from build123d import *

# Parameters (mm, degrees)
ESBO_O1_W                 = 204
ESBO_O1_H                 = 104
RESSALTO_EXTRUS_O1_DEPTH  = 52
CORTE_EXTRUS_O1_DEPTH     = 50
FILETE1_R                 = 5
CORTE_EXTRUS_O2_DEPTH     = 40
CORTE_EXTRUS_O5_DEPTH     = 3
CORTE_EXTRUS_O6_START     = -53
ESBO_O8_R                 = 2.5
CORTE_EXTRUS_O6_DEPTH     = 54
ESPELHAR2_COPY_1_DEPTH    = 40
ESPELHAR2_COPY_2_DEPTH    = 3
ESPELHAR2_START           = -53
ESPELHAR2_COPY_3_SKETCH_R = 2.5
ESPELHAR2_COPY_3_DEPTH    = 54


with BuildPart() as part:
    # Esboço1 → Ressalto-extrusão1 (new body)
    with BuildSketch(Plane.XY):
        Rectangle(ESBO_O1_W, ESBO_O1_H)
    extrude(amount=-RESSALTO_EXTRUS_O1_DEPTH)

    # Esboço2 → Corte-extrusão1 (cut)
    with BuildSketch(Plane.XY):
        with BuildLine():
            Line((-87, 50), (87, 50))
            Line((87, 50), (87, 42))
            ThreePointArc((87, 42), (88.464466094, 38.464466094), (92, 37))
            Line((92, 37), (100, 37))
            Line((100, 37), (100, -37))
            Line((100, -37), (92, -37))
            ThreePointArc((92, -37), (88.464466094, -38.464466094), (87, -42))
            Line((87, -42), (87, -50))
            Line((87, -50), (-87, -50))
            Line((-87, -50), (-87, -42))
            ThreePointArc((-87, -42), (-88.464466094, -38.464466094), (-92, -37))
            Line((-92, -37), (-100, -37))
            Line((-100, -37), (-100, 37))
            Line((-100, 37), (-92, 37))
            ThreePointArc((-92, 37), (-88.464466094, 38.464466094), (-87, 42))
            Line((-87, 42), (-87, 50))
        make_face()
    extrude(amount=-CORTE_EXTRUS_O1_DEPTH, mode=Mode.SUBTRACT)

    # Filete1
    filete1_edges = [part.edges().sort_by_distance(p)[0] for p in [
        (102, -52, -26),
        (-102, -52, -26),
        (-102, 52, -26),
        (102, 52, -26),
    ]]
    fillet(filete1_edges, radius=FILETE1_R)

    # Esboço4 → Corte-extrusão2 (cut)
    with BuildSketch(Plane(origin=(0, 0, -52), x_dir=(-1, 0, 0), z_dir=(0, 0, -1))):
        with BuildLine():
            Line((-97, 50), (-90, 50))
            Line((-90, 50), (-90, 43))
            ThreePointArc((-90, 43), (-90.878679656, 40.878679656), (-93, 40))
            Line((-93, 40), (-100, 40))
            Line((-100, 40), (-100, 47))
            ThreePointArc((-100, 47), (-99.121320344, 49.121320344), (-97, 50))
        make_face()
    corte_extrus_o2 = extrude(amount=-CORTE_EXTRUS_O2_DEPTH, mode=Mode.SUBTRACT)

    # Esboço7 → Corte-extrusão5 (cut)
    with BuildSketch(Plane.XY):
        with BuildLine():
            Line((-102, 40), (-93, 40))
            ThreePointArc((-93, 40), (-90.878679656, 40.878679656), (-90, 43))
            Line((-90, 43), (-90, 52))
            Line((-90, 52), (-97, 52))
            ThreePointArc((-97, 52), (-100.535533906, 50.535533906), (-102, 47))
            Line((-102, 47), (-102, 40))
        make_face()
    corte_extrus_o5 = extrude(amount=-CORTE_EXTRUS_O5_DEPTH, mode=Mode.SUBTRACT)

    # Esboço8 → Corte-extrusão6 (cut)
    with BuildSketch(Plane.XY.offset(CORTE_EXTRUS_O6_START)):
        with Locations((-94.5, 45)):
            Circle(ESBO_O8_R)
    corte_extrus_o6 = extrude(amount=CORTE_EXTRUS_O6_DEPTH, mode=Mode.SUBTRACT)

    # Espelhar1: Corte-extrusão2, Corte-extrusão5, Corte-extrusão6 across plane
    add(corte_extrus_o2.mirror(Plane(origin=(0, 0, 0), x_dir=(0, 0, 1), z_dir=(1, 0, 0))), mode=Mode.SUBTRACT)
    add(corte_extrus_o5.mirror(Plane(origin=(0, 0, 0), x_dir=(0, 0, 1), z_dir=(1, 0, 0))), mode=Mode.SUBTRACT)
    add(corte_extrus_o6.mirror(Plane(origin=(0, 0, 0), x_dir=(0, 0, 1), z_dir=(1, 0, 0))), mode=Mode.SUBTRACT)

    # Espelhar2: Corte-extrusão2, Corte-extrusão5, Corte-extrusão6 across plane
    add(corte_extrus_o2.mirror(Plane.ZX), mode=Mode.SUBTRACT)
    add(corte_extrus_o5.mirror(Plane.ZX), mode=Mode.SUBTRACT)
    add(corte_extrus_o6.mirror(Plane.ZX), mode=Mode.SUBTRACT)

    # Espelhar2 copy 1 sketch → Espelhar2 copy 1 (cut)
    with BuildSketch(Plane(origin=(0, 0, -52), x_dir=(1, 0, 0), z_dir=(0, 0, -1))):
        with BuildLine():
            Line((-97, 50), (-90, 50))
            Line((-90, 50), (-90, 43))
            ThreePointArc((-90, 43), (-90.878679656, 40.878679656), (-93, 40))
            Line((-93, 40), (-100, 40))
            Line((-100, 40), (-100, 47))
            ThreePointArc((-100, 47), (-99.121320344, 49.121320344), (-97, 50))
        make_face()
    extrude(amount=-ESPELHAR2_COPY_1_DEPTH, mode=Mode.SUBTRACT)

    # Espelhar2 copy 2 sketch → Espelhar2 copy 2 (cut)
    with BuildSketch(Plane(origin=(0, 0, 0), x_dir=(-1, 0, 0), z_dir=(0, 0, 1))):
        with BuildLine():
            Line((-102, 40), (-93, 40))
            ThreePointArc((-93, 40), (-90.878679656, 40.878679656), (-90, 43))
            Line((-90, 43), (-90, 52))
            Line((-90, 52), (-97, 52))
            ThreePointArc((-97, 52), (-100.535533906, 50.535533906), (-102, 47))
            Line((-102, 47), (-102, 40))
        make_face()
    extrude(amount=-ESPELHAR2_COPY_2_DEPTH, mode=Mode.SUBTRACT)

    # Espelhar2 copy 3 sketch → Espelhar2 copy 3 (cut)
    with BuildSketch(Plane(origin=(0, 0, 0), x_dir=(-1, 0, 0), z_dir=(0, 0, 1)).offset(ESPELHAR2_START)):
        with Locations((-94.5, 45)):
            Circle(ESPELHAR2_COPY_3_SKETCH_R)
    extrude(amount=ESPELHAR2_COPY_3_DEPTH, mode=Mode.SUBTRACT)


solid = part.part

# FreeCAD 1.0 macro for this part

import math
import FreeCAD as App
import Part
import Sketcher

V = App.Vector
Q = App.Units.Quantity


def edges_at(feature, points):
    """Names of the edges that pass closest to the given points."""
    edges = feature.Shape.Edges
    near = lambda p: min(range(len(edges)), key=lambda i: edges[i].distToShape(Part.Vertex(*p))[0])
    return sorted({f"Edge{near(p) + 1}" for p in points})

doc = App.newDocument("Part")
body = doc.addObject("PartDesign::Body", "Body")

sketch1 = doc.addObject("Sketcher::SketchObject", "Sketch")
body.addObject(sketch1)
sketch1.AttachmentSupport = (doc.XY_Plane, [""])
sketch1.MapMode = "FlatFace"
sketch1.addGeometry([
    Part.LineSegment(V(-102, 52, 0), V(-102, -52, 0)),
    Part.LineSegment(V(-102, -52, 0), V(102, -52, 0)),
    Part.LineSegment(V(102, -52, 0), V(102, 52, 0)),
    Part.LineSegment(V(102, 52, 0), V(-102, 52, 0)),
], False)
sketch1.addConstraint([
    Sketcher.Constraint("Coincident", 0, 2, 1, 1),
    Sketcher.Constraint("Coincident", 1, 2, 2, 1),
    Sketcher.Constraint("Coincident", 2, 2, 3, 1),
    Sketcher.Constraint("Coincident", 3, 2, 0, 1),
    Sketcher.Constraint("Vertical", 0),
    Sketcher.Constraint("Horizontal", 1),
    Sketcher.Constraint("Vertical", 2),
    Sketcher.Constraint("Horizontal", 3),
    Sketcher.Constraint("Symmetric", 0, 2, 2, 2, -1, 1),
    Sketcher.Constraint("DistanceX", 1, 1, 1, 2, Q("204 mm")),
    Sketcher.Constraint("DistanceY", 0, 2, 0, 1, Q("104 mm")),
])
pad1 = doc.addObject("PartDesign::Pad", "Pad")
body.addObject(pad1)
pad1.Profile = sketch1
pad1.Length = 52
pad1.Reversed = True

sketch2 = doc.addObject("Sketcher::SketchObject", "Sketch001")
body.addObject(sketch2)
sketch2.AttachmentSupport = (doc.XY_Plane, [""])
sketch2.MapMode = "FlatFace"
sketch2.addGeometry([
    Part.LineSegment(V(87, 50, 0), V(-87, 50, 0)),
    Part.LineSegment(V(-87, 50, 0), V(-87, 42, 0)),
    Part.ArcOfCircle(Part.Circle(V(-92, 42, 0), V(0, 0, 1), 5), math.radians(-90), math.radians(0)),
    Part.LineSegment(V(-92, 37, 0), V(-100, 37, 0)),
    Part.LineSegment(V(-100, 37, 0), V(-100, -37, 0)),
    Part.LineSegment(V(-100, -37, 0), V(-92, -37, 0)),
    Part.ArcOfCircle(Part.Circle(V(-92, -42, 0), V(0, 0, 1), 5), math.radians(0), math.radians(90)),
    Part.LineSegment(V(-87, -42, 0), V(-87, -50, 0)),
    Part.LineSegment(V(-87, -50, 0), V(87, -50, 0)),
    Part.LineSegment(V(87, -50, 0), V(87, -42, 0)),
    Part.ArcOfCircle(Part.Circle(V(92, -42, 0), V(0, 0, 1), 5), math.radians(90), math.radians(180)),
    Part.LineSegment(V(92, -37, 0), V(100, -37, 0)),
    Part.LineSegment(V(100, -37, 0), V(100, 37, 0)),
    Part.LineSegment(V(100, 37, 0), V(92, 37, 0)),
    Part.ArcOfCircle(Part.Circle(V(92, 42, 0), V(0, 0, 1), 5), math.radians(180), math.radians(270)),
    Part.LineSegment(V(87, 42, 0), V(87, 50, 0)),
], False)
sketch2.addConstraint([
    Sketcher.Constraint("Coincident", 0, 2, 1, 1),
    Sketcher.Constraint("Tangent", 1, 2, 2, 2),
    Sketcher.Constraint("Tangent", 2, 1, 3, 1),
    Sketcher.Constraint("Coincident", 3, 2, 4, 1),
    Sketcher.Constraint("Coincident", 4, 2, 5, 1),
    Sketcher.Constraint("Tangent", 5, 2, 6, 2),
    Sketcher.Constraint("Tangent", 6, 1, 7, 1),
    Sketcher.Constraint("Coincident", 7, 2, 8, 1),
    Sketcher.Constraint("Coincident", 8, 2, 9, 1),
    Sketcher.Constraint("Tangent", 9, 2, 10, 2),
    Sketcher.Constraint("Tangent", 10, 1, 11, 1),
    Sketcher.Constraint("Coincident", 11, 2, 12, 1),
    Sketcher.Constraint("Coincident", 12, 2, 13, 1),
    Sketcher.Constraint("Tangent", 13, 2, 14, 2),
    Sketcher.Constraint("Tangent", 14, 1, 15, 1),
    Sketcher.Constraint("Coincident", 15, 2, 0, 1),
    Sketcher.Constraint("Horizontal", 0),
    Sketcher.Constraint("Vertical", 1),
    Sketcher.Constraint("Horizontal", 3),
    Sketcher.Constraint("Vertical", 4),
    Sketcher.Constraint("Horizontal", 5),
    Sketcher.Constraint("Vertical", 7),
    Sketcher.Constraint("Horizontal", 8),
    Sketcher.Constraint("Vertical", 9),
    Sketcher.Constraint("Horizontal", 11),
    Sketcher.Constraint("Vertical", 12),
    Sketcher.Constraint("Horizontal", 13),
    Sketcher.Constraint("Vertical", 15),
    Sketcher.Constraint("Equal", 2, 6),
    Sketcher.Constraint("Equal", 6, 10),
    Sketcher.Constraint("Equal", 10, 14),
    Sketcher.Constraint("Symmetric", 2, 3, 10, 3, -1, 1),
    Sketcher.Constraint("Symmetric", 6, 3, 14, 3, -1, 1),
    Sketcher.Constraint("Symmetric", 6, 3, 10, 3, -2),
    Sketcher.Constraint("Equal", 5, 11),
    Sketcher.Constraint("Equal", 13, 1),
    Sketcher.Constraint("Equal", 1, 7),
    Sketcher.Constraint("Radius", 2, Q("5 mm")),
    Sketcher.Constraint("DistanceX", 0, 2, 0, 1, Q("174 mm")),
    Sketcher.Constraint("DistanceX", 3, 2, 3, 1, Q("8 mm")),
    Sketcher.Constraint("DistanceY", 4, 2, 4, 1, Q("74 mm")),
])
pocket1 = doc.addObject("PartDesign::Pocket", "Pocket")
body.addObject(pocket1)
pocket1.Profile = sketch2
pocket1.Length = 50
doc.recompute()

fillet = doc.addObject("PartDesign::Fillet", "Fillet")
body.addObject(fillet)
fillet.Base = (pocket1, edges_at(pocket1, [
    (102, -52, -26),
    (-102, -52, -26),
    (-102, 52, -26),
    (102, 52, -26),
]))
fillet.Radius = 5

sketch3 = doc.addObject("Sketcher::SketchObject", "Sketch002")
body.addObject(sketch3)
sketch3.AttachmentSupport = (doc.XY_Plane, [""])
sketch3.MapMode = "FlatFace"
sketch3.AttachmentOffset = App.Placement(V(0, 0, -52), App.Rotation())
sketch3.addGeometry([
    Part.LineSegment(V(90, 50, 0), V(97, 50, 0)),
    Part.ArcOfCircle(Part.Circle(V(97, 47, 0), V(0, 0, 1), 3), math.radians(0), math.radians(90)),
    Part.LineSegment(V(100, 47, 0), V(100, 40, 0)),
    Part.LineSegment(V(100, 40, 0), V(93, 40, 0)),
    Part.ArcOfCircle(Part.Circle(V(93, 43, 0), V(0, 0, 1), 3), math.radians(180), math.radians(270)),
    Part.LineSegment(V(90, 43, 0), V(90, 50, 0)),
], False)
sketch3.addConstraint([
    Sketcher.Constraint("Tangent", 0, 2, 1, 2),
    Sketcher.Constraint("Tangent", 1, 1, 2, 1),
    Sketcher.Constraint("Coincident", 2, 2, 3, 1),
    Sketcher.Constraint("Tangent", 3, 2, 4, 2),
    Sketcher.Constraint("Tangent", 4, 1, 5, 1),
    Sketcher.Constraint("Coincident", 5, 2, 0, 1),
    Sketcher.Constraint("Horizontal", 0),
    Sketcher.Constraint("Vertical", 2),
    Sketcher.Constraint("Horizontal", 3),
    Sketcher.Constraint("Vertical", 5),
    Sketcher.Constraint("Equal", 1, 4),
    Sketcher.Constraint("Equal", 3, 2),
    Sketcher.Constraint("Radius", 1, Q("3 mm")),
    Sketcher.Constraint("DistanceX", 0, 1, 0, 2, Q("7 mm")),
    Sketcher.Constraint("DistanceX", -1, 1, 1, 3, Q("97 mm")),
    Sketcher.Constraint("DistanceY", -1, 1, 1, 3, Q("47 mm")),
])
pocket2 = doc.addObject("PartDesign::Pocket", "Pocket001")
body.addObject(pocket2)
pocket2.Profile = sketch3
pocket2.Length = 40
pocket2.Reversed = True

sketch4 = doc.addObject("Sketcher::SketchObject", "Sketch003")
body.addObject(sketch4)
sketch4.AttachmentSupport = (doc.XY_Plane, [""])
sketch4.MapMode = "FlatFace"
sketch4.addGeometry([
    Part.LineSegment(V(-102, 40, 0), V(-93, 40, 0)),
    Part.ArcOfCircle(Part.Circle(V(-93, 43, 0), V(0, 0, 1), 3), math.radians(-90), math.radians(0)),
    Part.LineSegment(V(-90, 43, 0), V(-90, 52, 0)),
    Part.LineSegment(V(-90, 52, 0), V(-97, 52, 0)),
    Part.ArcOfCircle(Part.Circle(V(-97, 47, 0), V(0, 0, 1), 5), math.radians(90), math.radians(180)),
    Part.LineSegment(V(-102, 47, 0), V(-102, 40, 0)),
], False)
sketch4.addConstraint([
    Sketcher.Constraint("Tangent", 0, 2, 1, 1),
    Sketcher.Constraint("Tangent", 1, 2, 2, 1),
    Sketcher.Constraint("Coincident", 2, 2, 3, 1),
    Sketcher.Constraint("Tangent", 3, 2, 4, 1),
    Sketcher.Constraint("Tangent", 4, 2, 5, 1),
    Sketcher.Constraint("Coincident", 5, 2, 0, 1),
    Sketcher.Constraint("Horizontal", 0),
    Sketcher.Constraint("Vertical", 2),
    Sketcher.Constraint("Horizontal", 3),
    Sketcher.Constraint("Vertical", 5),
    Sketcher.Constraint("Equal", 0, 2),
    Sketcher.Constraint("Radius", 1, Q("3 mm")),
    Sketcher.Constraint("Radius", 4, Q("5 mm")),
    Sketcher.Constraint("DistanceX", 0, 1, 0, 2, Q("9 mm")),
    Sketcher.Constraint("DistanceX", 1, 3, -1, 1, Q("93 mm")),
    Sketcher.Constraint("DistanceY", -1, 1, 1, 3, Q("43 mm")),
])
pocket3 = doc.addObject("PartDesign::Pocket", "Pocket002")
body.addObject(pocket3)
pocket3.Profile = sketch4
pocket3.Length = 3

sketch5 = doc.addObject("Sketcher::SketchObject", "Sketch004")
body.addObject(sketch5)
sketch5.AttachmentSupport = (doc.XY_Plane, [""])
sketch5.MapMode = "FlatFace"
sketch5.AttachmentOffset = App.Placement(V(0, 0, -53), App.Rotation())
sketch5.addGeometry(Part.Circle(V(-94.5, 45, 0), V(0, 0, 1), 2.5), False)
sketch5.addConstraint([
    Sketcher.Constraint("Diameter", 0, Q("5 mm")),
    Sketcher.Constraint("DistanceY", -1, 1, 0, 3, Q("45 mm")),
    Sketcher.Constraint("DistanceX", 0, 3, -1, 1, Q("94.5 mm")),
])
pocket4 = doc.addObject("PartDesign::Pocket", "Pocket003")
body.addObject(pocket4)
pocket4.Profile = sketch5
pocket4.Length = 54
pocket4.Reversed = True
doc.recompute()

mirrored = doc.addObject("PartDesign::Mirrored", "Mirrored")
body.addObject(mirrored)
mirrored.Originals = [pocket2, pocket3, pocket4]
mirrored.MirrorPlane = (doc.YZ_Plane, [""])
body.Tip = mirrored
doc.recompute()

mirrored2 = doc.addObject("PartDesign::Mirrored", "Mirrored001")
body.addObject(mirrored2)
mirrored2.Originals = [pocket2, pocket3, pocket4]
mirrored2.MirrorPlane = (doc.XZ_Plane, [""])
body.Tip = mirrored2

sketch6 = doc.addObject("Sketcher::SketchObject", "Sketch005")
body.addObject(sketch6)
sketch6.AttachmentSupport = (doc.XY_Plane, [""])
sketch6.MapMode = "FlatFace"
sketch6.AttachmentOffset = App.Placement(V(0, 0, -52), App.Rotation())
sketch6.addGeometry([
    Part.LineSegment(V(-90, -50, 0), V(-97, -50, 0)),
    Part.ArcOfCircle(Part.Circle(V(-97, -47, 0), V(0, 0, 1), 3), math.radians(180), math.radians(270)),
    Part.LineSegment(V(-100, -47, 0), V(-100, -40, 0)),
    Part.LineSegment(V(-100, -40, 0), V(-93, -40, 0)),
    Part.ArcOfCircle(Part.Circle(V(-93, -43, 0), V(0, 0, 1), 3), math.radians(0), math.radians(90)),
    Part.LineSegment(V(-90, -43, 0), V(-90, -50, 0)),
], False)
sketch6.addConstraint([
    Sketcher.Constraint("Tangent", 0, 2, 1, 2),
    Sketcher.Constraint("Tangent", 1, 1, 2, 1),
    Sketcher.Constraint("Coincident", 2, 2, 3, 1),
    Sketcher.Constraint("Tangent", 3, 2, 4, 2),
    Sketcher.Constraint("Tangent", 4, 1, 5, 1),
    Sketcher.Constraint("Coincident", 5, 2, 0, 1),
    Sketcher.Constraint("Horizontal", 0),
    Sketcher.Constraint("Vertical", 2),
    Sketcher.Constraint("Horizontal", 3),
    Sketcher.Constraint("Vertical", 5),
    Sketcher.Constraint("Equal", 1, 4),
    Sketcher.Constraint("Equal", 3, 2),
    Sketcher.Constraint("Radius", 1, Q("3 mm")),
    Sketcher.Constraint("DistanceX", 0, 2, 0, 1, Q("7 mm")),
    Sketcher.Constraint("DistanceX", 1, 3, -1, 1, Q("97 mm")),
    Sketcher.Constraint("DistanceY", 1, 3, -1, 1, Q("47 mm")),
])
pocket5 = doc.addObject("PartDesign::Pocket", "Pocket004")
body.addObject(pocket5)
pocket5.Profile = sketch6
pocket5.Length = 40
pocket5.Reversed = True

sketch7 = doc.addObject("Sketcher::SketchObject", "Sketch006")
body.addObject(sketch7)
sketch7.AttachmentSupport = (doc.XY_Plane, [""])
sketch7.MapMode = "FlatFace"
sketch7.addGeometry([
    Part.LineSegment(V(102, -40, 0), V(93, -40, 0)),
    Part.ArcOfCircle(Part.Circle(V(93, -43, 0), V(0, 0, 1), 3), math.radians(90), math.radians(180)),
    Part.LineSegment(V(90, -43, 0), V(90, -52, 0)),
    Part.LineSegment(V(90, -52, 0), V(97, -52, 0)),
    Part.ArcOfCircle(Part.Circle(V(97, -47, 0), V(0, 0, 1), 5), math.radians(-90), math.radians(0)),
    Part.LineSegment(V(102, -47, 0), V(102, -40, 0)),
], False)
sketch7.addConstraint([
    Sketcher.Constraint("Tangent", 0, 2, 1, 1),
    Sketcher.Constraint("Tangent", 1, 2, 2, 1),
    Sketcher.Constraint("Coincident", 2, 2, 3, 1),
    Sketcher.Constraint("Tangent", 3, 2, 4, 1),
    Sketcher.Constraint("Tangent", 4, 2, 5, 1),
    Sketcher.Constraint("Coincident", 5, 2, 0, 1),
    Sketcher.Constraint("Horizontal", 0),
    Sketcher.Constraint("Vertical", 2),
    Sketcher.Constraint("Horizontal", 3),
    Sketcher.Constraint("Vertical", 5),
    Sketcher.Constraint("Equal", 0, 2),
    Sketcher.Constraint("Radius", 1, Q("3 mm")),
    Sketcher.Constraint("Radius", 4, Q("5 mm")),
    Sketcher.Constraint("DistanceX", 0, 2, 0, 1, Q("9 mm")),
    Sketcher.Constraint("DistanceX", -1, 1, 1, 3, Q("93 mm")),
    Sketcher.Constraint("DistanceY", 1, 3, -1, 1, Q("43 mm")),
])
pocket6 = doc.addObject("PartDesign::Pocket", "Pocket005")
body.addObject(pocket6)
pocket6.Profile = sketch7
pocket6.Length = 3

sketch8 = doc.addObject("Sketcher::SketchObject", "Sketch007")
body.addObject(sketch8)
sketch8.AttachmentSupport = (doc.XY_Plane, [""])
sketch8.MapMode = "FlatFace"
sketch8.AttachmentOffset = App.Placement(V(0, 0, -53), App.Rotation())
sketch8.addGeometry(Part.Circle(V(94.5, -45, 0), V(0, 0, 1), 2.5), False)
sketch8.addConstraint([
    Sketcher.Constraint("Diameter", 0, Q("5 mm")),
    Sketcher.Constraint("DistanceY", 0, 3, -1, 1, Q("45 mm")),
    Sketcher.Constraint("DistanceX", -1, 1, 0, 3, Q("94.5 mm")),
])
pocket7 = doc.addObject("PartDesign::Pocket", "Pocket006")
body.addObject(pocket7)
pocket7.Profile = sketch8
pocket7.Length = 54
pocket7.Reversed = True

doc.recompute()
